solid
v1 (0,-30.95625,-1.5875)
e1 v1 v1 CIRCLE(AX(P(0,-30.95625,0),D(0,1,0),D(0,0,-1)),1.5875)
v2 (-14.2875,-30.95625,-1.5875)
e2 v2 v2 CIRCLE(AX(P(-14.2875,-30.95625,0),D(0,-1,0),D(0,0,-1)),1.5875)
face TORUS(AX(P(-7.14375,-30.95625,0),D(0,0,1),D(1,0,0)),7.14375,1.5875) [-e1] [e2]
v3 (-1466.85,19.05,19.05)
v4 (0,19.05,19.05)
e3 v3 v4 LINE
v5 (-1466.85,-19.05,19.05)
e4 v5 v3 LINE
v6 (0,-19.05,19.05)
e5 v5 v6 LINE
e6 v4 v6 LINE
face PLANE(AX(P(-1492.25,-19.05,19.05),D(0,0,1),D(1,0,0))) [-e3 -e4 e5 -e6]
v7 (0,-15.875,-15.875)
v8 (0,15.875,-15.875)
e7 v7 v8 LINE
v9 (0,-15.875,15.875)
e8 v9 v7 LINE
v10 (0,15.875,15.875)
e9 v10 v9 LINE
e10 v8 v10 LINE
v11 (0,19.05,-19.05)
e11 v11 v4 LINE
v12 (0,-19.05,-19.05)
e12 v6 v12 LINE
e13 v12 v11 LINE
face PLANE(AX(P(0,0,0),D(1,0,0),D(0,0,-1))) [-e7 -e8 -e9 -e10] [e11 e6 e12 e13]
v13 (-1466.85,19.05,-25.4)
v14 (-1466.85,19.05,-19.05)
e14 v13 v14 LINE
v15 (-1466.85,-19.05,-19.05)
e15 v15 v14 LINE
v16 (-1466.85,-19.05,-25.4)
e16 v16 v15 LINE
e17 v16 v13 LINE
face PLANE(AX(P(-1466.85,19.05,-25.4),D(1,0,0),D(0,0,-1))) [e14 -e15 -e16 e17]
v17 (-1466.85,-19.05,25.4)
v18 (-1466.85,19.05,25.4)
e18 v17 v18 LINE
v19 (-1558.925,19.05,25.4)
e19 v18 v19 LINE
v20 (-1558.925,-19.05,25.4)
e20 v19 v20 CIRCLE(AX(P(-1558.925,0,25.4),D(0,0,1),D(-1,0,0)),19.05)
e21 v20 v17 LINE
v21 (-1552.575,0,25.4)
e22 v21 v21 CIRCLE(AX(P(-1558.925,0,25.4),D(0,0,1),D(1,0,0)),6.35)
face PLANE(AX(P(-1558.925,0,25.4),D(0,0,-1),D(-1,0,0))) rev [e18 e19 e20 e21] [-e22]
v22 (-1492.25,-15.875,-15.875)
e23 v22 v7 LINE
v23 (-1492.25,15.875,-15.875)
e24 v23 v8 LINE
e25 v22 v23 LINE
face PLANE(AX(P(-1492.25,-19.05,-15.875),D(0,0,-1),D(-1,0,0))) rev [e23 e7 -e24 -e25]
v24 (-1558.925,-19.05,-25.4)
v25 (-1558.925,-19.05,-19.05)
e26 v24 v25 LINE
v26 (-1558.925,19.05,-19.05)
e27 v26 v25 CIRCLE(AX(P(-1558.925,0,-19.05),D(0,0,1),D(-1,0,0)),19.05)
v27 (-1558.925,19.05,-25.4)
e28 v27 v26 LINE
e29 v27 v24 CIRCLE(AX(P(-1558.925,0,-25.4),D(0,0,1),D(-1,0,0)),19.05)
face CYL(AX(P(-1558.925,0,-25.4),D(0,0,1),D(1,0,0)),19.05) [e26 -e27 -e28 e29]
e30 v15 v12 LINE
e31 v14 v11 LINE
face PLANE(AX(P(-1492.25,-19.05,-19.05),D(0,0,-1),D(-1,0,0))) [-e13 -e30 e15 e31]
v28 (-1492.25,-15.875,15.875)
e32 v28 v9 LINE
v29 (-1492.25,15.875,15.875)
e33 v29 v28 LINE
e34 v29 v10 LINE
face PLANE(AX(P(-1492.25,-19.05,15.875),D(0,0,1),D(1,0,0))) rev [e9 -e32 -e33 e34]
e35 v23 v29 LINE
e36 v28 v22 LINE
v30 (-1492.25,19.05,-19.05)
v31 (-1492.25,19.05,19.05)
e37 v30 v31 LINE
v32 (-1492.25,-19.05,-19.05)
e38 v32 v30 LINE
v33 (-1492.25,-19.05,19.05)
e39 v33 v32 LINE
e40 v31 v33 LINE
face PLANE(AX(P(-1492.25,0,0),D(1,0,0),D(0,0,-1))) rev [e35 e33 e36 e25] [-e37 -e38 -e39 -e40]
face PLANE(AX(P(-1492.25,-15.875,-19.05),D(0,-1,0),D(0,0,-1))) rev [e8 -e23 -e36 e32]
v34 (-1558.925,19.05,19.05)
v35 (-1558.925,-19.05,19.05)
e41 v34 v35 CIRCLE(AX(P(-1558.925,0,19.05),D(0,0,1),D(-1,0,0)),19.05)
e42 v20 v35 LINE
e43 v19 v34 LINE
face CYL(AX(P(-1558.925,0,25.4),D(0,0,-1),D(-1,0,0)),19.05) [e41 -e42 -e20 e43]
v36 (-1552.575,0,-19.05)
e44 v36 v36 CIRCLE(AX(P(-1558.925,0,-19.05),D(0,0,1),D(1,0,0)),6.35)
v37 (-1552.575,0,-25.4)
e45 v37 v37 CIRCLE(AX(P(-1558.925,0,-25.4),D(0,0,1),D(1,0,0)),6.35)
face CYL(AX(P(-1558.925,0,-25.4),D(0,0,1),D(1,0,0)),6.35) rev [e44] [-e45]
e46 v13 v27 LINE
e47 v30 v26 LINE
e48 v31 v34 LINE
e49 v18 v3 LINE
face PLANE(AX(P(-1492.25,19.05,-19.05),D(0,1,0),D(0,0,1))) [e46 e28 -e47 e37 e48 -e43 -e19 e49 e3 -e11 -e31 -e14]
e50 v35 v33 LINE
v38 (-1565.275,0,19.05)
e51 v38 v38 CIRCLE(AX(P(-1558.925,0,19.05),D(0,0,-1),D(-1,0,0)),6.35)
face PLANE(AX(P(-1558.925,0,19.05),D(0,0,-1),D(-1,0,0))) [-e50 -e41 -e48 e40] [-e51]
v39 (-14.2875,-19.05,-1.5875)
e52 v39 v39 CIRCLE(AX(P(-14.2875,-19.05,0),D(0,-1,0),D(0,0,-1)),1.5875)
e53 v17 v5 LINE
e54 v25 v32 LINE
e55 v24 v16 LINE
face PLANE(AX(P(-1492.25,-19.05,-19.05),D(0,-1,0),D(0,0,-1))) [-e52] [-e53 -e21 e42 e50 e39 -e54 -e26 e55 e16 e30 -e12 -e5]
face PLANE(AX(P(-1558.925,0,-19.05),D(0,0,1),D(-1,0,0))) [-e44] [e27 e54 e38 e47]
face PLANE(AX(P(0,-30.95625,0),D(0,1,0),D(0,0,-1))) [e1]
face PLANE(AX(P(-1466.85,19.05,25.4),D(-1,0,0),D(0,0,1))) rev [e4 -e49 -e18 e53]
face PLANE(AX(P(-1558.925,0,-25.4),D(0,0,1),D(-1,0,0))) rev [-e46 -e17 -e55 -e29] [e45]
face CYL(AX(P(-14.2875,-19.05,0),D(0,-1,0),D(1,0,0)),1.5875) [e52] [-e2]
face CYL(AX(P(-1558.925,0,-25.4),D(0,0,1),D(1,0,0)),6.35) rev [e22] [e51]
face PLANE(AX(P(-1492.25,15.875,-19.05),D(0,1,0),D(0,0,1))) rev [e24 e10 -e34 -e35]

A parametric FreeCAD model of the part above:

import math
import FreeCAD as App
import Part
import Sketcher

V = App.Vector
Q = App.Units.Quantity


def faces_at(feature, points):
    """Names of the faces that lie closest to the given points."""
    faces = feature.Shape.Faces
    near = lambda p: min(range(len(faces)), key=lambda i: faces[i].distToShape(Part.Vertex(*p))[0])
    return sorted({f"Face{near(p) + 1}" for p in points})

doc = App.newDocument("Part")
body = doc.addObject("PartDesign::Body", "Body")

# Sketch on YZ plane
sketch1 = body.newObject("Sketcher::SketchObject", "Sketch")
sketch1.AttachmentSupport = (doc.getObject("YZ_Plane"), [""])
sketch1.MapMode = "FlatFace"
sketch1.addGeometry(Part.LineSegment(V(19, 19, 0), V(-19, 19, 0)), False)
sketch1.addGeometry(Part.LineSegment(V(-19, 19, 0), V(-19, -19, 0)), False)
sketch1.addGeometry(Part.LineSegment(V(-19, -19, 0), V(19, -19, 0)), False)
sketch1.addGeometry(Part.LineSegment(V(19, -19, 0), V(19, 19, 0)), False)
sketch1.addConstraint(Sketcher.Constraint("Coincident", 0, 2, 1, 1))
sketch1.addConstraint(Sketcher.Constraint("Coincident", 1, 2, 2, 1))
sketch1.addConstraint(Sketcher.Constraint("Coincident", 2, 2, 3, 1))
sketch1.addConstraint(Sketcher.Constraint("Coincident", 3, 2, 0, 1))
sketch1.addConstraint(Sketcher.Constraint("Horizontal", 0))
sketch1.addConstraint(Sketcher.Constraint("Vertical", 1))
sketch1.addConstraint(Sketcher.Constraint("Horizontal", 2))
sketch1.addConstraint(Sketcher.Constraint("Vertical", 3))
sketch1.addConstraint(Sketcher.Constraint("Symmetric", 0, 2, 2, 2, -1, 1))
sketch1.addConstraint(Sketcher.Constraint("Equal", 2, 1))
sketch1.addConstraint(Sketcher.Constraint("DistanceX", 0, 2, 0, 1, Q("1.5 in")))
pad1 = body.newObject("PartDesign::Pad", "Pad")
pad1.Profile = sketch1
pad1.Length = Q("58.75 in")
pad1.Reversed = True
doc.recompute()

thickness = body.newObject("PartDesign::Thickness", "Thickness")
thickness.Base = (pad1, faces_at(pad1, [(-1492.25, 0, 0), (0, 0, 0)]))
thickness.Value = Q("0.125 in")
thickness.Reversed = True
thickness.Join = "Intersection"

# Sketch on XY plane
sketch2 = body.newObject("Sketcher::SketchObject", "Sketch001")
sketch2.AttachmentSupport = (doc.getObject("XY_Plane"), [""])
sketch2.MapMode = "FlatFace"
sketch2.AttachmentOffset = App.Placement(V(0, 0, 0.75 * 25.4), App.Rotation())
sketch2.addGeometry(Part.LineSegment(V(-1467, -19, 0), V(-1467, 19, 0)), False)
sketch2.addGeometry(Part.LineSegment(V(-1467, 19, 0), V(-1559, 19, 0)), False)
sketch2.addGeometry(Part.ArcOfCircle(Part.Circle(V(-1559, 0, 0), V(0, 0, 1), 19), math.radians(90), math.radians(270)), False)
sketch2.addGeometry(Part.LineSegment(V(-1559, -19, 0), V(-1467, -19, 0)), False)
sketch2.addConstraint(Sketcher.Constraint("Coincident", 0, 2, 1, 1))
sketch2.addConstraint(Sketcher.Constraint("Tangent", 1, 2, 2, 1))
sketch2.addConstraint(Sketcher.Constraint("Tangent", 2, 2, 3, 1))
sketch2.addConstraint(Sketcher.Constraint("Coincident", 3, 2, 0, 1))
sketch2.addConstraint(Sketcher.Constraint("Vertical", 0))
sketch2.addConstraint(Sketcher.Constraint("Horizontal", 1))
sketch2.addConstraint(Sketcher.Constraint("Horizontal", 3))
sketch2.addConstraint(Sketcher.Constraint("PointOnObject", 2, 3, -1))
sketch2.addConstraint(Sketcher.Constraint("Radius", 2, Q("0.75 in")))
sketch2.addConstraint(Sketcher.Constraint("DistanceX", 1, 2, 1, 1, Q("3.625 in")))
sketch2.addConstraint(Sketcher.Constraint("DistanceX", 0, 2, -1, 1, Q("57.75 in")))
pad2 = body.newObject("PartDesign::Pad", "Pad001")
pad2.Profile = sketch2
pad2.Length = Q("0.25 in")
doc.recompute()

mirrored = body.newObject("PartDesign::Mirrored", "Mirrored")
mirrored.Originals = [pad2]
mirrored.MirrorPlane = (doc.getObject("XY_Plane"), [""])
body.Tip = mirrored

# Sketch on XY plane
sketch3 = body.newObject("Sketcher::SketchObject", "Sketch002")
sketch3.AttachmentSupport = (doc.getObject("XY_Plane"), [""])
sketch3.MapMode = "FlatFace"
sketch3.AttachmentOffset = App.Placement(V(0, 0, 1 * 25.4), App.Rotation())
sketch3.addGeometry(Part.Circle(V(-1559, 0, 0), V(0, 0, 1), 6), False)
sketch3.addConstraint(Sketcher.Constraint("PointOnObject", 0, 3, -1))
sketch3.addConstraint(Sketcher.Constraint("Diameter", 0, Q("0.5 in")))
sketch3.addConstraint(Sketcher.Constraint("DistanceX", 0, 3, -1, 1, Q("61.375 in")))
pocket1 = body.newObject("PartDesign::Pocket", "Pocket")
pocket1.Profile = sketch3
pocket1.Type = "ThroughAll"

# Sketch on XZ plane
sketch4 = body.newObject("Sketcher::SketchObject", "Sketch003")
sketch4.AttachmentSupport = (doc.getObject("XZ_Plane"), [""])
sketch4.MapMode = "FlatFace"
sketch4.AttachmentOffset = App.Placement(V(0, 0, 0.75 * 25.4), App.Rotation())
sketch4.addGeometry(Part.Circle(V(-14.3, 0, 0), V(0, 0, 1), 1.6), False)
sketch4.addConstraint(Sketcher.Constraint("PointOnObject", 0, 3, -1))
sketch4.addConstraint(Sketcher.Constraint("Diameter", 0, Q("0.125 in")))
sketch4.addConstraint(Sketcher.Constraint("DistanceX", 0, 3, -1, 1, Q("0.5625 in")))

# Sketch on XY plane
sketch5 = body.newObject("Sketcher::SketchObject", "Sketch004")
sketch5.AttachmentSupport = (doc.getObject("XY_Plane"), [""])
sketch5.MapMode = "FlatFace"
sketch5.addGeometry(Part.LineSegment(V(-14, -19, 0), V(-14, -31, 0)), False)
sketch5.addGeometry(Part.ArcOfCircle(Part.Circle(V(-7, -31, 0), V(0, 0, 1), 7), math.radians(180), math.radians(360)), False)
sketch5.addConstraint(Sketcher.Constraint("Tangent", 0, 2, 1, 1))
sketch5.addConstraint(Sketcher.Constraint("Vertical", 0))
sketch5.addConstraint(Sketcher.Constraint("PointOnObject", 1, 2, -2))
sketch5.addConstraint(Sketcher.Constraint("Horizontal", 0, 2, 1, 2))
sketch5.addConstraint(Sketcher.Constraint("Radius", 1, Q("0.28125 in")))
sketch5.addConstraint(Sketcher.Constraint("DistanceY", 0, 2, 0, 1, Q("0.46875 in")))
sketch5.addConstraint(Sketcher.Constraint("DistanceY", 0, 1, -1, 1, Q("0.75 in")))
doc.recompute()

additivepipe = body.newObject("PartDesign::AdditivePipe", "AdditivePipe")
additivepipe.Profile = sketch4
additivepipe.Spine = (sketch5, ["Edge1", "Edge2"])

doc.recompute()
